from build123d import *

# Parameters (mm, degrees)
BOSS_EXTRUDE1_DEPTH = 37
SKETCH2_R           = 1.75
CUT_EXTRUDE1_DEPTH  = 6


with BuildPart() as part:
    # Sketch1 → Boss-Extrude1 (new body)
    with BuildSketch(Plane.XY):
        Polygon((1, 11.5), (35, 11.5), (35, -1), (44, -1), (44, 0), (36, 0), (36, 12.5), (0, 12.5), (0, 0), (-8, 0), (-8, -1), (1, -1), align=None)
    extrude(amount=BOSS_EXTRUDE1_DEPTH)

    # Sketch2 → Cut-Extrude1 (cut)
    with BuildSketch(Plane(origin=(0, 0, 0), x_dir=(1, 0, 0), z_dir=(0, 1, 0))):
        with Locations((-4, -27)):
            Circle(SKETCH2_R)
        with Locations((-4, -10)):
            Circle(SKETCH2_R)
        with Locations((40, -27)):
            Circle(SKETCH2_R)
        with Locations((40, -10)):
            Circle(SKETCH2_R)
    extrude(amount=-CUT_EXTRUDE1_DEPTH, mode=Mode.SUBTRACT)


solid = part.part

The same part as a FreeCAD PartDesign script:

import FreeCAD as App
import Part
import Sketcher
from FreeCAD import Vector
Q = App.Units.Quantity


def add_polygon(sketch, points):
    """Adds a closed chain of lines whose ends are joined by coincident constraints."""
    first, n = sketch.GeometryCount, len(points)
    for a, b in zip(points, points[1:] + points[:1]):
        sketch.addGeometry(Part.LineSegment(App.Vector(*a, 0), App.Vector(*b, 0)), False)
    for i in range(n):
        sketch.addConstraint(Sketcher.Constraint("Coincident", first + i, 2, first + (i + 1) % n, 1))

doc = App.newDocument("Part")
body = doc.addObject("PartDesign::Body", "Body")

sketch1 = body.newObject("Sketcher::SketchObject", "Sketch")
sketch1.AttachmentSupport = (doc.getObject("XY_Plane"), [""])
sketch1.MapMode = "FlatFace"
add_polygon(sketch1, [(1, 11.5), (35, 11.5), (35, -1), (44, -1), (44, 0), (36, 0), (36, 12.5), (0, 12.5), (0, 0), (-8, 0), (-8, -1), (1, -1)])
sketch1.addConstraint([
    Sketcher.Constraint("Horizontal", 0),
    Sketcher.Constraint("Vertical", 1),
    Sketcher.Constraint("Horizontal", 2),
    Sketcher.Constraint("Vertical", 3),
    Sketcher.Constraint("Horizontal", 4),
    Sketcher.Constraint("Vertical", 5),
    Sketcher.Constraint("Horizontal", 6),
    Sketcher.Constraint("Vertical", 7),
    Sketcher.Constraint("Horizontal", 8),
    Sketcher.Constraint("Vertical", 9),
    Sketcher.Constraint("Horizontal", 10),
    Sketcher.Constraint("Vertical", 11),
    Sketcher.Constraint("Coincident", 7, 2, -1, 1),
    Sketcher.Constraint("PointOnObject", 3, 2, -1),
    Sketcher.Constraint("Horizontal", 2, 2, 9, 2),
    Sketcher.Constraint("Equal", 4, 8),
    Sketcher.Constraint("Equal", 2, 10),
    Sketcher.Constraint("Equal", 1, 5),
    Sketcher.Constraint("DistanceX", 0, 1, 0, 2, Q("34 mm")),
    Sketcher.Constraint("DistanceX", 2, 1, 2, 2, Q("9 mm")),
    Sketcher.Constraint("DistanceX", 4, 2, 4, 1, Q("8 mm")),
    Sketcher.Constraint("DistanceY", 3, 1, 3, 2, Q("1 mm")),
    Sketcher.Constraint("DistanceY", 1, 2, 1, 1, Q("12.5 mm")),
])
pad1 = body.newObject("PartDesign::Pad", "Pad")
pad1.Profile = sketch1
pad1.Length = 37

sketch2 = body.newObject("Sketcher::SketchObject", "Sketch001")
sketch2.AttachmentSupport = (doc.getObject("XZ_Plane"), [""])
sketch2.MapMode = "FlatFace"
sketch2.addGeometry([
    Part.Circle(Vector(-4, 27, 0), Vector(0, 0, 1), 1.75),
    Part.Circle(Vector(-4, 10, 0), Vector(0, 0, 1), 1.75),
    Part.Circle(Vector(40, 27, 0), Vector(0, 0, 1), 1.75),
    Part.Circle(Vector(40, 10, 0), Vector(0, 0, 1), 1.75),
], False)
sketch2.addConstraint([
    Sketcher.Constraint("Equal", 0, 1),
    Sketcher.Constraint("Equal", 1, 2),
    Sketcher.Constraint("Equal", 2, 3),
    Sketcher.Constraint("Horizontal", 0, 3, 2, 3),
    Sketcher.Constraint("Horizontal", 1, 3, 3, 3),
    Sketcher.Constraint("Vertical", 0, 3, 1, 3),
    Sketcher.Constraint("Vertical", 2, 3, 3, 3),
    Sketcher.Constraint("Diameter", 0, Q("3.5 mm")),
    Sketcher.Constraint("DistanceX", 0, 3, -1, 1, Q("4 mm")),
    Sketcher.Constraint("DistanceY", -1, 1, 0, 3, Q("27 mm")),
    Sketcher.Constraint("DistanceY", -1, 1, 1, 3, Q("10 mm")),
    Sketcher.Constraint("DistanceX", -1, 1, 2, 3, Q("40 mm")),
])
pocket1 = body.newObject("PartDesign::Pocket", "Pocket")
pocket1.Profile = sketch2
pocket1.Length = 6
pocket1.Reversed = True

doc.recompute()
